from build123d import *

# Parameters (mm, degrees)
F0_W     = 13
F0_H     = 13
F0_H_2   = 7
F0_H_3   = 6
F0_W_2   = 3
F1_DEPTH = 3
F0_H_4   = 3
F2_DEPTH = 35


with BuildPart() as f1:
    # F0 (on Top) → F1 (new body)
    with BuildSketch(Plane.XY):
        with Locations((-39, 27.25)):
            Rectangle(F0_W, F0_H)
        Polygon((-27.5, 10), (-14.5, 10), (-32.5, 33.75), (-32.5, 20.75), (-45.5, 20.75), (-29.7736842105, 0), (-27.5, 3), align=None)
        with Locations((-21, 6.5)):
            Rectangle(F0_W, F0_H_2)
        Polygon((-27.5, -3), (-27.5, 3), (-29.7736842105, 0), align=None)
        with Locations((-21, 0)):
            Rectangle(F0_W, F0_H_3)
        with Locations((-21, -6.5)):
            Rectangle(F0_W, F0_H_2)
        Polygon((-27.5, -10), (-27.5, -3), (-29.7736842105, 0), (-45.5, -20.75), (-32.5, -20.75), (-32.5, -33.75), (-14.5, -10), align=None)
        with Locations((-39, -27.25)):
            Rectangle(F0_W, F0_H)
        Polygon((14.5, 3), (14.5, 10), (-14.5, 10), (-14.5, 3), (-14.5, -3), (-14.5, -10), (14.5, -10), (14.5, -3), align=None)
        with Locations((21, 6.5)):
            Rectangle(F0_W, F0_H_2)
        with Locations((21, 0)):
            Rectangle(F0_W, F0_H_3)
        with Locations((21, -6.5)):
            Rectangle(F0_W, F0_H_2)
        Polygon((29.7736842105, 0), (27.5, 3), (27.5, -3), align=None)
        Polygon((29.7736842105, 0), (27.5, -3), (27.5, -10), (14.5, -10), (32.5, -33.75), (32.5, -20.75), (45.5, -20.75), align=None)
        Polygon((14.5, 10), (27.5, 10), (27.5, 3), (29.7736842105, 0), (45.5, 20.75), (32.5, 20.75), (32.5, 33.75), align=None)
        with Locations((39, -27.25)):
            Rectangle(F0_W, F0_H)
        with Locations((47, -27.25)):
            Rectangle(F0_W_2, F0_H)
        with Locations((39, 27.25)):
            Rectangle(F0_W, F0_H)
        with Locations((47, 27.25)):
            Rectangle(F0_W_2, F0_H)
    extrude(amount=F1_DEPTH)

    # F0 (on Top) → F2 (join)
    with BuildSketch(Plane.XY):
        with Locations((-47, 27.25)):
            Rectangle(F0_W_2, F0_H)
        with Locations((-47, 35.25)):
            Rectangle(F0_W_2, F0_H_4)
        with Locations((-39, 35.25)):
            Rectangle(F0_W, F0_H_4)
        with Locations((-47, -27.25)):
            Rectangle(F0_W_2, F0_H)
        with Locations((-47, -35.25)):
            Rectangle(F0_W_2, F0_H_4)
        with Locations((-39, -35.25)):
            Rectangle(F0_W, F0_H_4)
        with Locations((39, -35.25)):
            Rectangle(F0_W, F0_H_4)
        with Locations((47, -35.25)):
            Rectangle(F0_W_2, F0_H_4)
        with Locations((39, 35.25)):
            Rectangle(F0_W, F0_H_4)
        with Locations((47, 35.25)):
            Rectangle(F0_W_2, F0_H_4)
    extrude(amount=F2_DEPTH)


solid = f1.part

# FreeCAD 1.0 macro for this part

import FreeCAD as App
import Part
import Sketcher
from FreeCAD import Vector
Q = App.Units.Quantity

doc = App.newDocument("Part")
body = doc.addObject("PartDesign::Body", "Body")

# Sketch on XY plane
sketch1 = body.newObject("Sketcher::SketchObject", "Sketch")
sketch1.AttachmentSupport = (doc.getObject("XY_Plane"), [""])
sketch1.MapMode = "FlatFace"
sketch1.addGeometry([
    Part.LineSegment(Vector(-45.5, 33.8, 0), Vector(-45.5, 20.8, 0)),  # 0
    Part.LineSegment(Vector(-45.5, 20.8, 0), Vector(-29.8, 0, 0)),  # 1
    Part.LineSegment(Vector(-29.8, 0, 0), Vector(-45.5, -20.8, 0)),  # 2
    Part.LineSegment(Vector(-45.5, -20.8, 0), Vector(-45.5, -33.8, 0)),  # 3
    Part.LineSegment(Vector(-45.5, -33.8, 0), Vector(-32.5, -33.8, 0)),  # 4
    Part.LineSegment(Vector(-32.5, -33.8, 0), Vector(-14.5, -10, 0)),  # 5
    Part.LineSegment(Vector(-14.5, -10, 0), Vector(14.5, -10, 0)),  # 6
    Part.LineSegment(Vector(14.5, -10, 0), Vector(32.5, -33.8, 0)),  # 7
    Part.LineSegment(Vector(32.5, -33.8, 0), Vector(48.5, -33.8, 0)),  # 8
    Part.LineSegment(Vector(48.5, -33.8, 0), Vector(48.5, -20.8, 0)),  # 9
    Part.LineSegment(Vector(48.5, -20.8, 0), Vector(45.5, -20.8, 0)),  # 10
    Part.LineSegment(Vector(45.5, -20.8, 0), Vector(29.8, 0, 0)),  # 11
    Part.LineSegment(Vector(29.8, 0, 0), Vector(45.5, 20.8, 0)),  # 12
    Part.LineSegment(Vector(45.5, 20.8, 0), Vector(48.5, 20.8, 0)),  # 13
    Part.LineSegment(Vector(48.5, 20.8, 0), Vector(48.5, 33.8, 0)),  # 14
    Part.LineSegment(Vector(48.5, 33.8, 0), Vector(32.5, 33.8, 0)),  # 15
    Part.LineSegment(Vector(32.5, 33.8, 0), Vector(14.5, 10, 0)),  # 16
    Part.LineSegment(Vector(14.5, 10, 0), Vector(-14.5, 10, 0)),  # 17
    Part.LineSegment(Vector(-14.5, 10, 0), Vector(-32.5, 33.8, 0)),  # 18
    Part.LineSegment(Vector(-32.5, 33.8, 0), Vector(-45.5, 33.8, 0)),  # 19
], False)
sketch1.addConstraint([
    Sketcher.Constraint("Coincident", 0, 2, 1, 1),
    Sketcher.Constraint("Coincident", 1, 2, 2, 1),
    Sketcher.Constraint("Coincident", 2, 2, 3, 1),
    Sketcher.Constraint("Coincident", 3, 2, 4, 1),
    Sketcher.Constraint("Coincident", 4, 2, 5, 1),
    Sketcher.Constraint("Coincident", 5, 2, 6, 1),
    Sketcher.Constraint("Coincident", 6, 2, 7, 1),
    Sketcher.Constraint("Coincident", 7, 2, 8, 1),
    Sketcher.Constraint("Coincident", 8, 2, 9, 1),
    Sketcher.Constraint("Coincident", 9, 2, 10, 1),
    Sketcher.Constraint("Coincident", 10, 2, 11, 1),
    Sketcher.Constraint("Coincident", 11, 2, 12, 1),
    Sketcher.Constraint("Coincident", 12, 2, 13, 1),
    Sketcher.Constraint("Coincident", 13, 2, 14, 1),
    Sketcher.Constraint("Coincident", 14, 2, 15, 1),
    Sketcher.Constraint("Coincident", 15, 2, 16, 1),
    Sketcher.Constraint("Coincident", 16, 2, 17, 1),
    Sketcher.Constraint("Coincident", 17, 2, 18, 1),
    Sketcher.Constraint("Coincident", 18, 2, 19, 1),
    Sketcher.Constraint("Coincident", 19, 2, 0, 1),
    Sketcher.Constraint("Vertical", 0),
    Sketcher.Constraint("Vertical", 3),
    Sketcher.Constraint("Horizontal", 4),
    Sketcher.Constraint("Horizontal", 6),
    Sketcher.Constraint("Horizontal", 8),
    Sketcher.Constraint("Vertical", 9),
    Sketcher.Constraint("Horizontal", 10),
    Sketcher.Constraint("Horizontal", 13),
    Sketcher.Constraint("Vertical", 14),
    Sketcher.Constraint("Horizontal", 15),
    Sketcher.Constraint("Horizontal", 17),
    Sketcher.Constraint("Horizontal", 19),
    Sketcher.Constraint("Symmetric", 0, 2, 10, 2, -1, 1),
    Sketcher.Constraint("Symmetric", 1, 2, 11, 2, -1, 1),
    Sketcher.Constraint("Symmetric", 2, 2, 12, 2, -1, 1),
    Sketcher.Constraint("Symmetric", 4, 2, 15, 2, -1, 1),
    Sketcher.Constraint("Symmetric", 5, 2, 16, 2, -1, 1),
    Sketcher.Constraint("Symmetric", 7, 2, 18, 2, -1, 1),
    Sketcher.Constraint("Symmetric", 4, 2, 7, 2, -2),
    Sketcher.Constraint("Symmetric", 2, 2, 10, 2, -2),
    Sketcher.Constraint("PointOnObject", 1, 2, -1),
    Sketcher.Constraint("Parallel", 2, 5),
    Sketcher.Constraint("Parallel", 1, 7),
    Sketcher.Constraint("Parallel", 11, 18),
    Sketcher.Constraint("Vertical", 9, 2, 13, 2),
    Sketcher.Constraint("Equal", 19, 0),
    Sketcher.Constraint("DistanceX", 4, 1, 4, 2, Q("13 mm")),
    Sketcher.Constraint("DistanceX", 6, 1, 6, 2, Q("29 mm")),
    Sketcher.Constraint("DistanceX", 8, 1, 8, 2, Q("16 mm")),
    Sketcher.Constraint("DistanceY", 5, 2, -1, 1, Q("10 mm")),
    Sketcher.Constraint("DistanceX", 4, 2, 5, 2, Q("18 mm")),
    Sketcher.Constraint("DistanceY", 2, 2, 0, 2, Q("41.5 mm")),
])
pad1 = body.newObject("PartDesign::Pad", "Pad")
pad1.Profile = sketch1
pad1.Length = 3

# Sketch on XY plane
sketch2 = body.newObject("Sketcher::SketchObject", "Sketch001")
sketch2.AttachmentSupport = (doc.getObject("XY_Plane"), [""])
sketch2.MapMode = "FlatFace"
sketch2.addGeometry([
    Part.LineSegment(Vector(-48.5, 20.8, 0), Vector(-45.5, 20.8, 0)),  # 0
    Part.LineSegment(Vector(-45.5, 20.8, 0), Vector(-45.5, 33.8, 0)),  # 1
    Part.LineSegment(Vector(-45.5, 33.8, 0), Vector(-32.5, 33.8, 0)),  # 2
    Part.LineSegment(Vector(-32.5, 33.8, 0), Vector(-32.5, 36.8, 0)),  # 3
    Part.LineSegment(Vector(-32.5, 36.8, 0), Vector(-48.5, 36.8, 0)),  # 4
    Part.LineSegment(Vector(-48.5, 36.8, 0), Vector(-48.5, 20.8, 0)),  # 5
    Part.LineSegment(Vector(-48.5, -20.8, 0), Vector(-48.5, -36.8, 0)),  # 6
    Part.LineSegment(Vector(-48.5, -36.8, 0), Vector(-32.5, -36.8, 0)),  # 7
    Part.LineSegment(Vector(-32.5, -36.8, 0), Vector(-32.5, -33.8, 0)),  # 8
    Part.LineSegment(Vector(-32.5, -33.8, 0), Vector(-45.5, -33.8, 0)),  # 9
    Part.LineSegment(Vector(-45.5, -33.8, 0), Vector(-45.5, -20.8, 0)),  # 10
    Part.LineSegment(Vector(-45.5, -20.8, 0), Vector(-48.5, -20.8, 0)),  # 11
    Part.LineSegment(Vector(32.5, -33.8, 0), Vector(32.5, -36.8, 0)),  # 12
    Part.LineSegment(Vector(32.5, -36.8, 0), Vector(48.5, -36.8, 0)),  # 13
    Part.LineSegment(Vector(48.5, -36.8, 0), Vector(48.5, -33.8, 0)),  # 14
    Part.LineSegment(Vector(48.5, -33.8, 0), Vector(32.5, -33.8, 0)),  # 15
    Part.LineSegment(Vector(32.5, 36.8, 0), Vector(32.5, 33.8, 0)),  # 16
    Part.LineSegment(Vector(32.5, 33.8, 0), Vector(48.5, 33.8, 0)),  # 17
    Part.LineSegment(Vector(48.5, 33.8, 0), Vector(48.5, 36.8, 0)),  # 18
    Part.LineSegment(Vector(48.5, 36.8, 0), Vector(32.5, 36.8, 0)),  # 19
], False)
sketch2.addConstraint([
    Sketcher.Constraint("Coincident", 0, 2, 1, 1),
    Sketcher.Constraint("Coincident", 1, 2, 2, 1),
    Sketcher.Constraint("Coincident", 2, 2, 3, 1),
    Sketcher.Constraint("Coincident", 3, 2, 4, 1),
    Sketcher.Constraint("Coincident", 4, 2, 5, 1),
    Sketcher.Constraint("Coincident", 5, 2, 0, 1),
    Sketcher.Constraint("Coincident", 6, 2, 7, 1),
    Sketcher.Constraint("Coincident", 7, 2, 8, 1),
    Sketcher.Constraint("Coincident", 8, 2, 9, 1),
    Sketcher.Constraint("Coincident", 9, 2, 10, 1),
    Sketcher.Constraint("Coincident", 10, 2, 11, 1),
    Sketcher.Constraint("Coincident", 11, 2, 6, 1),
    Sketcher.Constraint("Coincident", 12, 2, 13, 1),
    Sketcher.Constraint("Coincident", 13, 2, 14, 1),
    Sketcher.Constraint("Coincident", 14, 2, 15, 1),
    Sketcher.Constraint("Coincident", 15, 2, 12, 1),
    Sketcher.Constraint("Coincident", 16, 2, 17, 1),
    Sketcher.Constraint("Coincident", 17, 2, 18, 1),
    Sketcher.Constraint("Coincident", 18, 2, 19, 1),
    Sketcher.Constraint("Coincident", 19, 2, 16, 1),
    Sketcher.Constraint("Horizontal", 0),
    Sketcher.Constraint("Vertical", 1),
    Sketcher.Constraint("Horizontal", 2),
    Sketcher.Constraint("Vertical", 3),
    Sketcher.Constraint("Horizontal", 4),
    Sketcher.Constraint("Vertical", 5),
    Sketcher.Constraint("Vertical", 6),
    Sketcher.Constraint("Horizontal", 7),
    Sketcher.Constraint("Vertical", 8),
    Sketcher.Constraint("Horizontal", 9),
    Sketcher.Constraint("Vertical", 10),
    Sketcher.Constraint("Horizontal", 11),
    Sketcher.Constraint("Vertical", 12),
    Sketcher.Constraint("Horizontal", 13),
    Sketcher.Constraint("Vertical", 14),
    Sketcher.Constraint("Horizontal", 15),
    Sketcher.Constraint("Vertical", 16),
    Sketcher.Constraint("Horizontal", 17),
    Sketcher.Constraint("Vertical", 18),
    Sketcher.Constraint("Horizontal", 19),
    Sketcher.Constraint("Symmetric", 3, 2, 12, 2, -1, 1),
    Sketcher.Constraint("Symmetric", 8, 2, 16, 2, -1, 1),
    Sketcher.Constraint("Symmetric", 6, 2, 18, 2, -1, 1),
    Sketcher.Constraint("Symmetric", 7, 2, 12, 2, -2),
    Sketcher.Constraint("Symmetric", 1, 2, 9, 2, -1),
    Sketcher.Constraint("Symmetric", 5, 2, 11, 2, -1),
    Sketcher.Constraint("Symmetric", 14, 2, 17, 2, -1),
    Sketcher.Constraint("Equal", 9, 1),
    Sketcher.Constraint("Equal", 11, 3),
    Sketcher.Constraint("DistanceX", 0, 1, 0, 2, Q("3 mm")),
    Sketcher.Constraint("DistanceX", 2, 1, 2, 2, Q("13 mm")),
    Sketcher.Constraint("DistanceX", 7, 2, 12, 2, Q("65 mm")),
    Sketcher.Constraint("DistanceY", 6, 2, 5, 2, Q("57.5 mm")),
])
pad2 = body.newObject("PartDesign::Pad", "Pad001")
pad2.Profile = sketch2
pad2.Length = 35

doc.recompute()
